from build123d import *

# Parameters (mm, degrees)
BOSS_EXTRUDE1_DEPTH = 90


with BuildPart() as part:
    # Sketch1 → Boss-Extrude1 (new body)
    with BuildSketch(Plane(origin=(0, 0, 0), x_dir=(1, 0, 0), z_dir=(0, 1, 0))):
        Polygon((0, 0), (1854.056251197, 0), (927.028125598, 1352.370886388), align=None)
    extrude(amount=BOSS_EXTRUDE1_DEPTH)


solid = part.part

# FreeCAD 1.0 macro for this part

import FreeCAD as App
import Part
import Sketcher
Q = App.Units.Quantity

doc = App.newDocument("Part")
body = doc.addObject("PartDesign::Body", "Body")

# Sketch on XZ plane
sketch1 = body.newObject("Sketcher::SketchObject", "Sketch")
sketch1.AttachmentSupport = (doc.getObject("XZ_Plane"), [""])
sketch1.MapMode = "FlatFace"
sketch1.addGeometry([
    Part.LineSegment(App.Vector(0, 0, 0), App.Vector(1854, 0, 0)),
    Part.LineSegment(App.Vector(1854, 0, 0), App.Vector(927, -1352, 0)),
    Part.LineSegment(App.Vector(927, -1352, 0), App.Vector(0, 0, 0)),
], False)
sketch1.addConstraint([
    Sketcher.Constraint("Coincident", 0, 2, 1, 1),
    Sketcher.Constraint("Coincident", 1, 2, 2, 1),
    Sketcher.Constraint("Coincident", 2, 2, 0, 1),
    Sketcher.Constraint("Horizontal", 0),
    Sketcher.Constraint("Coincident", 2, 2, -1, 1),
    Sketcher.Constraint("Equal", 1, 2),
    Sketcher.Constraint("Distance", 1, 1639.6),
    Sketcher.Constraint("Angle", 1, Q("-124.43 deg")),
])
pad1 = body.newObject("PartDesign::Pad", "Pad")
pad1.Profile = sketch1
pad1.Length = 90
pad1.Reversed = True

doc.recompute()
